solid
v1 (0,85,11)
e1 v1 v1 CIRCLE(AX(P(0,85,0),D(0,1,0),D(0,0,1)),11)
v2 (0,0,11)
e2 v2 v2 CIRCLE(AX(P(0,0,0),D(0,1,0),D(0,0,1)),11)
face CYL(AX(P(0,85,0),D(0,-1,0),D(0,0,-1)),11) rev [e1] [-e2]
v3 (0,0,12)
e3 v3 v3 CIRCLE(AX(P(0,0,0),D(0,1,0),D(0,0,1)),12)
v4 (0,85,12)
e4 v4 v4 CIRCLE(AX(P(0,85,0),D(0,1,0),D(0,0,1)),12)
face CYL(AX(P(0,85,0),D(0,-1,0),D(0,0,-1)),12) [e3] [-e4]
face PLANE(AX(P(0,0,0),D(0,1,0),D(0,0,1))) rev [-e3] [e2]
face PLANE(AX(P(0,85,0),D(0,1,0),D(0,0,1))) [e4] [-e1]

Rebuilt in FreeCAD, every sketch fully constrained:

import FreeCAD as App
import Part
import Sketcher

V = App.Vector
Q = App.Units.Quantity

doc = App.newDocument("Part")
body = doc.addObject("PartDesign::Body", "Body")

sketch1 = doc.addObject("Sketcher::SketchObject", "Sketch")
body.addObject(sketch1)
sketch1.AttachmentSupport = (doc.XZ_Plane, [""])
sketch1.MapMode = "FlatFace"
sketch1.addGeometry(Part.Circle(V(0, 0, 0), V(0, 0, 1), 12), False)
sketch1.addGeometry(Part.Circle(V(0, 0, 0), V(0, 0, 1), 11), False)
sketch1.addConstraint(Sketcher.Constraint("Coincident", 0, 3, -1, 1))
sketch1.addConstraint(Sketcher.Constraint("Coincident", 1, 3, -1, 1))
sketch1.addConstraint(Sketcher.Constraint("Diameter", 0, Q("24 mm")))
sketch1.addConstraint(Sketcher.Constraint("Diameter", 1, Q("22 mm")))
pad1 = doc.addObject("PartDesign::Pad", "Pad")
body.addObject(pad1)
pad1.Profile = sketch1
pad1.Length = 85
pad1.Reversed = True

doc.recompute()
